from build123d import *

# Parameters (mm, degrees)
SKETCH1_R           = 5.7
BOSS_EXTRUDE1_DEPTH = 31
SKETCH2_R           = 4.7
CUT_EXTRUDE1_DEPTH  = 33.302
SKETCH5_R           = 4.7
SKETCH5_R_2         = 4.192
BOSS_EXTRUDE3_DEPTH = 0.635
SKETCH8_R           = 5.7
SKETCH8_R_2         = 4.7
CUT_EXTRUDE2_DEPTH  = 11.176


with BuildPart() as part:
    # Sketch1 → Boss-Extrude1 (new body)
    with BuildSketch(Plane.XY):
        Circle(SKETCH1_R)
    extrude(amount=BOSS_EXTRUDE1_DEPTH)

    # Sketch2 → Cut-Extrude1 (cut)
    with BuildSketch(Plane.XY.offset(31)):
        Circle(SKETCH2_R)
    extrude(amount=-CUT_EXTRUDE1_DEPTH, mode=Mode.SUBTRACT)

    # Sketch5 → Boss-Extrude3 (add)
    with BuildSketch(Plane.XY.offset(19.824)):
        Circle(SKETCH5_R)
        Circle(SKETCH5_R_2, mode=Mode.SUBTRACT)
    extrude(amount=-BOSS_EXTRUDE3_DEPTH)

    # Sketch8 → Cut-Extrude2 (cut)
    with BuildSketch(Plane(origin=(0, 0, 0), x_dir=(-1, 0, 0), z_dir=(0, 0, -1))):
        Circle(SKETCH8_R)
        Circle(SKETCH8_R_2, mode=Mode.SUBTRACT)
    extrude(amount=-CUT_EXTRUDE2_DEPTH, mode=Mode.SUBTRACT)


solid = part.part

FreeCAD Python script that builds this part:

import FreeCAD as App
import Part
import Sketcher
from FreeCAD import Vector

doc = App.newDocument("Part")
params = doc.addObject("Spreadsheet::Sheet", "Params")
for row, (alias, value) in enumerate([
    ("sketch1_diameter", "11.4 mm"),
    ("pad1_length", "31 mm"),
    ("sketch2_diameter", "9.4 mm"),
    ("pocket1_length", "33.302 mm"),
    ("sketch3_diameter", "9.4 mm"),
    ("pad2_length", "0.635 mm"),
    ("sketch4_diameter", "11.4 mm"),
    ("sketch4_diameter2", "9.4 mm"),
    ("pocket2_length", "11.176 mm"),
], start=1):
    params.set(f"A{row}", alias)
    params.set(f"B{row}", "=" + value)
    params.setAlias(f"B{row}", alias)

body = doc.addObject("PartDesign::Body", "Body")

# Sketch on XY plane
sketch1 = body.newObject("Sketcher::SketchObject", "Sketch")
sketch1.AttachmentSupport = (doc.getObject("XY_Plane"), [""])
sketch1.MapMode = "FlatFace"
sketch1.addGeometry(Part.Circle(Vector(0, 0, 0), Vector(0, 0, 1), 6), False)
sketch1.addConstraint(Sketcher.Constraint("Coincident", 0, 3, -1, 1))
sketch1.addConstraint(Sketcher.Constraint("Diameter", 0, 11.4))
sketch1.setExpression("Constraints[1]", "Params.sketch1_diameter")
pad1 = body.newObject("PartDesign::Pad", "Pad")
pad1.Profile = sketch1
pad1.setExpression("Length", "Params.pad1_length")

# Sketch on XY plane
sketch2 = body.newObject("Sketcher::SketchObject", "Sketch001")
sketch2.AttachmentSupport = (doc.getObject("XY_Plane"), [""])
sketch2.MapMode = "FlatFace"
sketch2.AttachmentOffset = App.Placement(Vector(0, 0, 31), App.Rotation())
sketch2.addGeometry(Part.Circle(Vector(0, 0, 0), Vector(0, 0, 1), 4.7), False)
sketch2.addConstraint(Sketcher.Constraint("Coincident", 0, 3, -1, 1))
sketch2.addConstraint(Sketcher.Constraint("Diameter", 0, 9.4))
sketch2.setExpression("Constraints[1]", "Params.sketch2_diameter")
pocket1 = body.newObject("PartDesign::Pocket", "Pocket")
pocket1.Profile = sketch2
pocket1.setExpression("Length", "Params.pocket1_length")

# Sketch on XY plane
sketch3 = body.newObject("Sketcher::SketchObject", "Sketch002")
sketch3.AttachmentSupport = (doc.getObject("XY_Plane"), [""])
sketch3.MapMode = "FlatFace"
sketch3.AttachmentOffset = App.Placement(Vector(0, 0, 19.824), App.Rotation())
sketch3.addGeometry(Part.Circle(Vector(0, 0, 0), Vector(0, 0, 1), 4.7), False)
sketch3.addGeometry(Part.Circle(Vector(0, 0, 0), Vector(0, 0, 1), 4.2), False)
sketch3.addConstraint(Sketcher.Constraint("Coincident", 0, 3, -1, 1))
sketch3.addConstraint(Sketcher.Constraint("Coincident", 1, 3, -1, 1))
sketch3.addConstraint(Sketcher.Constraint("Diameter", 0, 9.4))
sketch3.addConstraint(Sketcher.Constraint("Diameter", 1, 8.384))
sketch3.setExpression("Constraints[2]", "Params.sketch3_diameter")
pad2 = body.newObject("PartDesign::Pad", "Pad001")
pad2.Profile = sketch3
pad2.setExpression("Length", "Params.pad2_length")
pad2.Reversed = True

# Sketch on XY plane
sketch4 = body.newObject("Sketcher::SketchObject", "Sketch003")
sketch4.AttachmentSupport = (doc.getObject("XY_Plane"), [""])
sketch4.MapMode = "FlatFace"
sketch4.addGeometry(Part.Circle(Vector(0, 0, 0), Vector(0, 0, 1), 5.7), False)
sketch4.addGeometry(Part.Circle(Vector(0, 0, 0), Vector(0, 0, 1), 4.7), False)
sketch4.addConstraint(Sketcher.Constraint("Coincident", 0, 3, -1, 1))
sketch4.addConstraint(Sketcher.Constraint("Coincident", 1, 3, -1, 1))
sketch4.addConstraint(Sketcher.Constraint("Diameter", 0, 11.4))
sketch4.addConstraint(Sketcher.Constraint("Diameter", 1, 9.4))
sketch4.setExpression("Constraints[2]", "Params.sketch4_diameter")
sketch4.setExpression("Constraints[3]", "Params.sketch4_diameter2")
pocket2 = body.newObject("PartDesign::Pocket", "Pocket001")
pocket2.Profile = sketch4
pocket2.setExpression("Length", "Params.pocket2_length")
pocket2.Reversed = True

doc.recompute()
